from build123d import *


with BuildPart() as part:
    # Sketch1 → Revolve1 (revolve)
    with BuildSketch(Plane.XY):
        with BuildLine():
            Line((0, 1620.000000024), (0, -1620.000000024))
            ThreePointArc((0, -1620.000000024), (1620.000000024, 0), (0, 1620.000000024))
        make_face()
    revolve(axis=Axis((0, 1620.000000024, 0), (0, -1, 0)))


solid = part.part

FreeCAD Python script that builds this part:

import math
import FreeCAD as App
import Part
import Sketcher

V = App.Vector

doc = App.newDocument("Part")
body = doc.addObject("PartDesign::Body", "Body")

# Sketch on XY plane
sketch1 = body.newObject("Sketcher::SketchObject", "Sketch")
sketch1.AttachmentSupport = (doc.getObject("XY_Plane"), [""])
sketch1.MapMode = "FlatFace"
sketch1.addGeometry([
    Part.LineSegment(V(0, 1620, 0), V(0, -1620, 0)),
    Part.ArcOfCircle(Part.Circle(V(0, 0, 0), V(0, 0, 1), 1620), math.radians(-90), math.radians(90)),
], False)
sketch1.addConstraint([
    Sketcher.Constraint("Coincident", 0, 1, 1, 2),
    Sketcher.Constraint("Coincident", 1, 1, 0, 2),
    Sketcher.Constraint("Vertical", 0),
    Sketcher.Constraint("Coincident", 1, 3, -1, 1),
    Sketcher.Constraint("PointOnObject", 0, 1, -2),
    Sketcher.Constraint("Radius", 1, 1620.0),
])
revolution = body.newObject("PartDesign::Revolution", "Revolution")
revolution.Profile = sketch1
revolution.ReferenceAxis = (sketch1, ["V_Axis"])
revolution.Angle = 360

doc.recompute()
